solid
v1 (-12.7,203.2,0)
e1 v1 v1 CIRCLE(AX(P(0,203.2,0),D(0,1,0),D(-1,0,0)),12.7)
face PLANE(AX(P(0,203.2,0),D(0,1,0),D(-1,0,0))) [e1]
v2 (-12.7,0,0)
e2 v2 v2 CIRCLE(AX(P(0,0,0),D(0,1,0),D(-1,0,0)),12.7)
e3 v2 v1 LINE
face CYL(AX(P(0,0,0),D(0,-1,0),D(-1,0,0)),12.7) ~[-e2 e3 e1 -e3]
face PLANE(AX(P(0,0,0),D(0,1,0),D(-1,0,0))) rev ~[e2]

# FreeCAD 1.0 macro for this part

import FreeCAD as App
import Part
import Sketcher

V = App.Vector
Q = App.Units.Quantity

doc = App.newDocument("Part")
body = doc.addObject("PartDesign::Body", "Body")

# Sketch on XZ plane
sketch1 = doc.addObject("Sketcher::SketchObject", "Sketch")
body.addObject(sketch1)
sketch1.AttachmentSupport = (doc.XZ_Plane, [""])
sketch1.MapMode = "FlatFace"
sketch1.addGeometry(Part.Circle(V(0, 0, 0), V(0, 0, 1), 13), False)
sketch1.addConstraint(Sketcher.Constraint("Coincident", 0, 3, -1, 1))
sketch1.addConstraint(Sketcher.Constraint("Diameter", 0, Q("1 in")))
pad1 = doc.addObject("PartDesign::Pad", "Pad")
body.addObject(pad1)
pad1.Profile = sketch1
pad1.Length = Q("8 in")
pad1.Reversed = True

doc.recompute()
